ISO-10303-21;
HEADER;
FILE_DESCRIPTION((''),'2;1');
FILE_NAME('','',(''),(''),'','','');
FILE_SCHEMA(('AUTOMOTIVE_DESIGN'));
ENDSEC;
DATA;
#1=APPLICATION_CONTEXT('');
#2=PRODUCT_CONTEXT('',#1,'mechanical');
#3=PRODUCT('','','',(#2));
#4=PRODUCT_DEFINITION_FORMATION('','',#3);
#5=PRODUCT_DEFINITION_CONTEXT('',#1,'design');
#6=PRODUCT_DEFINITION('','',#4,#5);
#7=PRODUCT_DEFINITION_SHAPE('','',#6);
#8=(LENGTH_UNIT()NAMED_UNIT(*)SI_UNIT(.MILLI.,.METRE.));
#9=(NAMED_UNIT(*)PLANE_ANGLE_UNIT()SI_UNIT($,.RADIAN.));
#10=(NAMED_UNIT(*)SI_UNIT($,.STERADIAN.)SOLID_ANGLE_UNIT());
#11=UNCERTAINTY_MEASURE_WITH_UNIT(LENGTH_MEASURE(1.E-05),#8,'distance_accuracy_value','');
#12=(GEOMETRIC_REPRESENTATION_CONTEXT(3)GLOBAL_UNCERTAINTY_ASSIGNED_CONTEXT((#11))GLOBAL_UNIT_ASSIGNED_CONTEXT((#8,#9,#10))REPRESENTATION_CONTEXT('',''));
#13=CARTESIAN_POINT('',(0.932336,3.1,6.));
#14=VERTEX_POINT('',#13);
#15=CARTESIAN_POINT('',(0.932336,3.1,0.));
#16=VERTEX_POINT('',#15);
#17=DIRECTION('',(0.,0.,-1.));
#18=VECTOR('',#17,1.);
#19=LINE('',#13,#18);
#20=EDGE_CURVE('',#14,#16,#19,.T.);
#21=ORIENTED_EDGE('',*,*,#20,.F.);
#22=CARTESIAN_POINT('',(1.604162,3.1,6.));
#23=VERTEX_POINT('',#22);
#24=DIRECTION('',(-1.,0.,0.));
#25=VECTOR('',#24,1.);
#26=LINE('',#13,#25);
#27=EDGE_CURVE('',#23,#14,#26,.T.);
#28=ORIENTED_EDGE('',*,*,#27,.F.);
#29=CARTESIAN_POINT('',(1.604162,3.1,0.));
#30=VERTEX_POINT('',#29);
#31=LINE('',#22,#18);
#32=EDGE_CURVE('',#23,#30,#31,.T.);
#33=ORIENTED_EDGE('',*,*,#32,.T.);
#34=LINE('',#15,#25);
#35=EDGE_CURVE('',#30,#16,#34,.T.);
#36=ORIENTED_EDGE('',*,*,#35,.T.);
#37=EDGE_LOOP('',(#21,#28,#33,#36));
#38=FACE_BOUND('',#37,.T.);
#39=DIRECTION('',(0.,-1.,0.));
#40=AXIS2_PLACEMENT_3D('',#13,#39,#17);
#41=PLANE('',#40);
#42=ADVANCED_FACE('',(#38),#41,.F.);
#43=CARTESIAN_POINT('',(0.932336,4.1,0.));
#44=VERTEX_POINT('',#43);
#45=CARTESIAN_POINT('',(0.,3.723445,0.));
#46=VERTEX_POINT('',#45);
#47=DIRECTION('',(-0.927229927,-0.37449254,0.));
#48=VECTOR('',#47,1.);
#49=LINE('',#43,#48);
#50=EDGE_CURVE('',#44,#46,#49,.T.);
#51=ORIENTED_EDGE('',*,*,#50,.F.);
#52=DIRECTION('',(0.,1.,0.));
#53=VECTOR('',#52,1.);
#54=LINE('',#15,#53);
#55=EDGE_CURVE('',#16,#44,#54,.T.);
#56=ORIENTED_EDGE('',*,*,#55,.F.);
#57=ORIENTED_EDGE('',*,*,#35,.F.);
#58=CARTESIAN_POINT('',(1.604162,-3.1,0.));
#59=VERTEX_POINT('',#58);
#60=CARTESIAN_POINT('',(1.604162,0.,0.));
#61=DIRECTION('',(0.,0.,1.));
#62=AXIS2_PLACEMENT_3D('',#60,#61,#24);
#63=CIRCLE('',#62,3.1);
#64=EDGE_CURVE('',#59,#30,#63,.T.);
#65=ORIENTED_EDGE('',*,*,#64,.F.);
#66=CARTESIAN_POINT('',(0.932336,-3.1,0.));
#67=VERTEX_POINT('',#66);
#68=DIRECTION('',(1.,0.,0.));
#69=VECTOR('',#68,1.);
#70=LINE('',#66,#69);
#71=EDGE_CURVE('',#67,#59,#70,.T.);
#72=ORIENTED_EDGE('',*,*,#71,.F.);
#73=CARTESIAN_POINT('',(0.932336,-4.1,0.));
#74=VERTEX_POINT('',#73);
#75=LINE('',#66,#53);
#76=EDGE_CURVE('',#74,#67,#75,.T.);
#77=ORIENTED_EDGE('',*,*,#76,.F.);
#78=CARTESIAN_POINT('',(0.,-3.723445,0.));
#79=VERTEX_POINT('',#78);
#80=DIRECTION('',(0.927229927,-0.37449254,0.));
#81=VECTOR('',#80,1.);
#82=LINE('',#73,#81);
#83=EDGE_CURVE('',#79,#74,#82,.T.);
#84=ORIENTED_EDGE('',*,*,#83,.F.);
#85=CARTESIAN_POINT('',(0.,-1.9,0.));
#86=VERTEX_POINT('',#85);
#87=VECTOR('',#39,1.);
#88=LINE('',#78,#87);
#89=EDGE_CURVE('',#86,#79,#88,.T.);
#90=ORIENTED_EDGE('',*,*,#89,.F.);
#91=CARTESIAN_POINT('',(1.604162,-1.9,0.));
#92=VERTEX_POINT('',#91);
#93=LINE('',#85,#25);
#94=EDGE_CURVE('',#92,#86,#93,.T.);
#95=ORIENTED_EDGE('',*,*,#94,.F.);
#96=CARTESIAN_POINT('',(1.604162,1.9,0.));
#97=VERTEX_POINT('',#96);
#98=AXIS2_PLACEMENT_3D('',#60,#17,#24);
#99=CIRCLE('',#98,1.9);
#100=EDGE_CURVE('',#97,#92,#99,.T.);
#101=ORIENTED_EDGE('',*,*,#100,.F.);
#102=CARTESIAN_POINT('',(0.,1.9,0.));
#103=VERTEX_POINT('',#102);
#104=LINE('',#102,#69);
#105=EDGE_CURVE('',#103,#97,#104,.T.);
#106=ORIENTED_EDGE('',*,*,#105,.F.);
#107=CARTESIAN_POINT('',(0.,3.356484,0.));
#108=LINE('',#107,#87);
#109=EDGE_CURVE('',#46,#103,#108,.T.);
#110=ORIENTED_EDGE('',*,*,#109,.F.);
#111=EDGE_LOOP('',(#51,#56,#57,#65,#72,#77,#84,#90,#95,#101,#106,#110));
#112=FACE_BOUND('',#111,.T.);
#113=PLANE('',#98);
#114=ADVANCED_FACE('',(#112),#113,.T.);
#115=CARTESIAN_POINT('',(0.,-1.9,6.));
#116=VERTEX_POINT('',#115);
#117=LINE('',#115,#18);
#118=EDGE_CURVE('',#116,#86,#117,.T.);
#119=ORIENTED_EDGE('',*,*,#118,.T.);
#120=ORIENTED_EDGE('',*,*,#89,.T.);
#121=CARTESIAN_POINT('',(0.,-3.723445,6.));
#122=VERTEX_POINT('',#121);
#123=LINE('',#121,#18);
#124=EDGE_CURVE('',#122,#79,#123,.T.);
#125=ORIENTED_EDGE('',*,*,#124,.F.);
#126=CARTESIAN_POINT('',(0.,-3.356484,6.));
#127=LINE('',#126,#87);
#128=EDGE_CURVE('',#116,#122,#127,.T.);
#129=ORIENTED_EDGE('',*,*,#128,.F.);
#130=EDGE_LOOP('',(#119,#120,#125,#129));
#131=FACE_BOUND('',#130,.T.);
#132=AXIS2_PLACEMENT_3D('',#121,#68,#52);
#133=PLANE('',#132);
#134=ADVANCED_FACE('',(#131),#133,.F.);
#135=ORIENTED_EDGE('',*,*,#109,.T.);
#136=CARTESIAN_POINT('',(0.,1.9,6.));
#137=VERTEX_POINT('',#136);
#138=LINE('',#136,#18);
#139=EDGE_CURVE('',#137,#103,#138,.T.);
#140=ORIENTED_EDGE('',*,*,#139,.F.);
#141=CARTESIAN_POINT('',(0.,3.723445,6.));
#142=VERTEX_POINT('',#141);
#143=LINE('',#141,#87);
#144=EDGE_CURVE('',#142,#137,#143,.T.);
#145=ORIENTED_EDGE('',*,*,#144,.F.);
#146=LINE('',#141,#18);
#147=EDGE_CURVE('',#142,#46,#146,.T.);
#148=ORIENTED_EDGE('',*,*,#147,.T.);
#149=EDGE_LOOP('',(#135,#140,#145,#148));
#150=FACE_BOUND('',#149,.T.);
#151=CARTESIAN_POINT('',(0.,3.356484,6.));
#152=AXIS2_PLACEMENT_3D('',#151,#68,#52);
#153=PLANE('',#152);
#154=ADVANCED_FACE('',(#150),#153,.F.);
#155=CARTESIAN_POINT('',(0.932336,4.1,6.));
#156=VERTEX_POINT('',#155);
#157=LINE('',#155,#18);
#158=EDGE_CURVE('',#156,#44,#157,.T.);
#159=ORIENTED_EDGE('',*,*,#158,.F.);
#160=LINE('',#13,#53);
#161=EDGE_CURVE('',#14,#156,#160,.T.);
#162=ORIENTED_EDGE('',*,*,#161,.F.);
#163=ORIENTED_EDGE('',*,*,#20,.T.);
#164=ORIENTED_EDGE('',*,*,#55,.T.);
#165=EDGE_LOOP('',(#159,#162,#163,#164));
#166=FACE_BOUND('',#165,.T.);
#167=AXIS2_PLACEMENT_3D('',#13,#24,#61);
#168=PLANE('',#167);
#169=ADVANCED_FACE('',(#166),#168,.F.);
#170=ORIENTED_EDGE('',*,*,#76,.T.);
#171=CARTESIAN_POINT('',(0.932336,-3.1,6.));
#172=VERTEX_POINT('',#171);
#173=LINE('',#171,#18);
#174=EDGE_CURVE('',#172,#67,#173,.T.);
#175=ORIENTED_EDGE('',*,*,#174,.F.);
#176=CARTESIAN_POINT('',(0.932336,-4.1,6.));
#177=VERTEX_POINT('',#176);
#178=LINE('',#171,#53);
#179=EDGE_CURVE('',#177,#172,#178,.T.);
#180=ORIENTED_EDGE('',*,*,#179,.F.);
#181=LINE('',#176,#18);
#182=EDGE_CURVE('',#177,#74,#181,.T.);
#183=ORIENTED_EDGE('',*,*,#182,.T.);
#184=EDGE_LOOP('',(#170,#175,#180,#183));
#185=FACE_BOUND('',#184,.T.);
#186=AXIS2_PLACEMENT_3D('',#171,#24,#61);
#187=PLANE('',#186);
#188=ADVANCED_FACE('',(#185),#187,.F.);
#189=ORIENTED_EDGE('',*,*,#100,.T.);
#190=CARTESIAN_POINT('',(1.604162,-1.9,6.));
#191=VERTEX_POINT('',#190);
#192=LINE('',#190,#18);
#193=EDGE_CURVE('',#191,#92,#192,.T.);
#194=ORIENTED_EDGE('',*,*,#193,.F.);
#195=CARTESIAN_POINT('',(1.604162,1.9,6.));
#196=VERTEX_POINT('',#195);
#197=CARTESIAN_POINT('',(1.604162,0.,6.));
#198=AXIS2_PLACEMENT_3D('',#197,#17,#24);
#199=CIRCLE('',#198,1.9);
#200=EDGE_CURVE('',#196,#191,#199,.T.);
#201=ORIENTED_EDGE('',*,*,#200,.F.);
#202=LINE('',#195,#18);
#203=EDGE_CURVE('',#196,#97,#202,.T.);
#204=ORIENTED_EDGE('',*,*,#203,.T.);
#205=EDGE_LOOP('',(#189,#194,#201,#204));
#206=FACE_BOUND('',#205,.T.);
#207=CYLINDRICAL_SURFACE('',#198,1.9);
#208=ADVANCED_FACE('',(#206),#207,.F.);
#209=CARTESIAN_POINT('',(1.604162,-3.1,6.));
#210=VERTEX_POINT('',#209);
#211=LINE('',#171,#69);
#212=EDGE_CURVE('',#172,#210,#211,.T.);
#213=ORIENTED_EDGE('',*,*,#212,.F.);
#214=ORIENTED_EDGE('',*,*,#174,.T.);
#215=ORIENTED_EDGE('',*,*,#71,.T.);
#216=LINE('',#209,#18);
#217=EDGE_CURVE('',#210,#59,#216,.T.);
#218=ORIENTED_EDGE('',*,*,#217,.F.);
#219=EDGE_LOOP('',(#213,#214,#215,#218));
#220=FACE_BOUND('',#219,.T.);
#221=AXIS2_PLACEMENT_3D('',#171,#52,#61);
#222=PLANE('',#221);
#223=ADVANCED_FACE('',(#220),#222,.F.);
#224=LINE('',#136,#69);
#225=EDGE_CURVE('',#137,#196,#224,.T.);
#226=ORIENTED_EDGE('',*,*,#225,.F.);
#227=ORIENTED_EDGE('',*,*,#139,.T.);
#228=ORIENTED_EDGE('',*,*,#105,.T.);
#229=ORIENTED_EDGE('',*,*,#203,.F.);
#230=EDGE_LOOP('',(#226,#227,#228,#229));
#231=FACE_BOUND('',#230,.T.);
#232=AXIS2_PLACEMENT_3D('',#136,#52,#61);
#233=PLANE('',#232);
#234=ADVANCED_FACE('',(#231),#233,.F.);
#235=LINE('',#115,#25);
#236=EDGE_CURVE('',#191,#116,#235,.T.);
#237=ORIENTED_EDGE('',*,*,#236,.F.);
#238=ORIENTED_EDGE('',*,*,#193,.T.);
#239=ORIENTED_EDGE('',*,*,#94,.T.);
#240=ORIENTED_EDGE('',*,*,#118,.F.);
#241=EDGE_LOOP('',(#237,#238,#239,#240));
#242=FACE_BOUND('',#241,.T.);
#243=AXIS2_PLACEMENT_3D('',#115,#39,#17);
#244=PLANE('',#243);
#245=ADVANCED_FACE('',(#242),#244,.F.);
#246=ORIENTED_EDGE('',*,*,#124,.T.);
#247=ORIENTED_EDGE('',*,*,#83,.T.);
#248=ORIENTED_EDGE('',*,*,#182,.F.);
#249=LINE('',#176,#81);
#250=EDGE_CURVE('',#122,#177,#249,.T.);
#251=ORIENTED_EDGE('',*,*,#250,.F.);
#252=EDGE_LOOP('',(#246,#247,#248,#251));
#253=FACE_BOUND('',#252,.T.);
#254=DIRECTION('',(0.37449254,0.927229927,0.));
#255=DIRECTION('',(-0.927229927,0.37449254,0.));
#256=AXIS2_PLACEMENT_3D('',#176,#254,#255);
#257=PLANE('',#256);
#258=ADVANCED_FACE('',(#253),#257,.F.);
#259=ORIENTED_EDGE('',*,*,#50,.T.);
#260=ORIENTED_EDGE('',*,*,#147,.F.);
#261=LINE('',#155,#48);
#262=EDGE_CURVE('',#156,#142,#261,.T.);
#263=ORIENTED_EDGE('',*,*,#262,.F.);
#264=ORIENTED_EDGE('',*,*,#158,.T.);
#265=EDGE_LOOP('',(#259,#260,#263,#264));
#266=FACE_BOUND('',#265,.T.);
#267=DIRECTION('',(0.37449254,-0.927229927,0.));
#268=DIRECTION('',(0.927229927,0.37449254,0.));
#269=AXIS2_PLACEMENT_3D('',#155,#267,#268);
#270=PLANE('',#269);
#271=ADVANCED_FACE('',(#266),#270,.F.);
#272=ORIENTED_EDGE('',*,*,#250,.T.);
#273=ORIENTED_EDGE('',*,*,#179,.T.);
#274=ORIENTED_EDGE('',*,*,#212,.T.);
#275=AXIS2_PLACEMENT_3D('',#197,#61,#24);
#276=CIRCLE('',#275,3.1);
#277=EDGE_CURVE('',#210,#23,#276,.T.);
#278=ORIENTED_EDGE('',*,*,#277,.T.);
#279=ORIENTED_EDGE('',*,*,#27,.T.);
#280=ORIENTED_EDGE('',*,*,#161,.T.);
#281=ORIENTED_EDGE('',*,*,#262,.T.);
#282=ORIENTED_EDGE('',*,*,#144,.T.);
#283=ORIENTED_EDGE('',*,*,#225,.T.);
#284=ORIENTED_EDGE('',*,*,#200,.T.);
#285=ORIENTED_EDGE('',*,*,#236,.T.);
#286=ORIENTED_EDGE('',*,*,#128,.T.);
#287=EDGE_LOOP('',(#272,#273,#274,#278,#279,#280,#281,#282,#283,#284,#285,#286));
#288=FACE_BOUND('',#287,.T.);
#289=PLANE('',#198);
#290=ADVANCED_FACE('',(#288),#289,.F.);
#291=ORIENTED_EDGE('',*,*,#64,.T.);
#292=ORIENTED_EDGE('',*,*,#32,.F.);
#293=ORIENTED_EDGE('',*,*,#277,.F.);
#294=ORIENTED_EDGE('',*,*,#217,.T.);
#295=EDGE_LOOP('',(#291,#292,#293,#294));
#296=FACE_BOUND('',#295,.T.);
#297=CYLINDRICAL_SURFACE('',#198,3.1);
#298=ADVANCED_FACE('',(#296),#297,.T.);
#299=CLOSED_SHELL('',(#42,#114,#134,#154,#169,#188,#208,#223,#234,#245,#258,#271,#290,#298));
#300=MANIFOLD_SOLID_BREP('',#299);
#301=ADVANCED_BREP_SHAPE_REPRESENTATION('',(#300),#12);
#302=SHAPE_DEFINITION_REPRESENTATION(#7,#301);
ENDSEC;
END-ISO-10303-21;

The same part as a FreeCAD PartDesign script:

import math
import FreeCAD as App
import Part
import Sketcher

V = App.Vector
Q = App.Units.Quantity

doc = App.newDocument("Part")
body = doc.addObject("PartDesign::Body", "Body")

# Sketch on XY plane
sketch1 = body.newObject("Sketcher::SketchObject", "Sketch")
sketch1.AttachmentSupport = (doc.getObject("XY_Plane"), [""])
sketch1.MapMode = "FlatFace"
sketch1.addGeometry([
    Part.LineSegment(V(1.6, 3.1, 0), V(0.9, 3.1, 0)),  # 0
    Part.LineSegment(V(0.9, 3.1, 0), V(0.9, 4.1, 0)),  # 1
    Part.LineSegment(V(0.9, 4.1, 0), V(0, 3.7, 0)),  # 2
    Part.LineSegment(V(0, 3.7, 0), V(0, 1.9, 0)),  # 3
    Part.LineSegment(V(0, 1.9, 0), V(1.6, 1.9, 0)),  # 4
    Part.ArcOfCircle(Part.Circle(V(1.6, 0, 0), V(0, 0, 1), 1.9), math.radians(-90), math.radians(90)),  # 5
    Part.LineSegment(V(1.6, -1.9, 0), V(0, -1.9, 0)),  # 6
    Part.LineSegment(V(0, -1.9, 0), V(0, -3.7, 0)),  # 7
    Part.LineSegment(V(0, -3.7, 0), V(0.9, -4.1, 0)),  # 8
    Part.LineSegment(V(0.9, -4.1, 0), V(0.9, -3.1, 0)),  # 9
    Part.LineSegment(V(0.9, -3.1, 0), V(1.6, -3.1, 0)),  # 10
    Part.ArcOfCircle(Part.Circle(V(1.6, 0, 0), V(0, 0, 1), 3.1), math.radians(-90), math.radians(90)),  # 11
], False)
sketch1.addConstraint([
    Sketcher.Constraint("Coincident", 0, 2, 1, 1),
    Sketcher.Constraint("Coincident", 1, 2, 2, 1),
    Sketcher.Constraint("Coincident", 2, 2, 3, 1),
    Sketcher.Constraint("Coincident", 3, 2, 4, 1),
    Sketcher.Constraint("Tangent", 4, 2, 5, 2),
    Sketcher.Constraint("Tangent", 5, 1, 6, 1),
    Sketcher.Constraint("Coincident", 6, 2, 7, 1),
    Sketcher.Constraint("Coincident", 7, 2, 8, 1),
    Sketcher.Constraint("Coincident", 8, 2, 9, 1),
    Sketcher.Constraint("Coincident", 9, 2, 10, 1),
    Sketcher.Constraint("Tangent", 10, 2, 11, 1),
    Sketcher.Constraint("Tangent", 11, 2, 0, 1),
    Sketcher.Constraint("Horizontal", 0),
    Sketcher.Constraint("Vertical", 1),
    Sketcher.Constraint("Vertical", 3),
    Sketcher.Constraint("Horizontal", 4),
    Sketcher.Constraint("Horizontal", 6),
    Sketcher.Constraint("Vertical", 7),
    Sketcher.Constraint("Vertical", 9),
    Sketcher.Constraint("Horizontal", 10),
    Sketcher.Constraint("Coincident", 11, 3, 5, 3),
    Sketcher.Constraint("Symmetric", 3, 2, 6, 2, -1, 1),
    Sketcher.Constraint("Symmetric", 2, 2, 7, 2, -1),
    Sketcher.Constraint("Symmetric", 1, 2, 8, 2, -1),
    Sketcher.Constraint("Radius", 5, Q("1.9 mm")),
    Sketcher.Constraint("Radius", 11, Q("3.1 mm")),
    Sketcher.Constraint("DistanceY", 1, 1, 1, 2, Q("1 mm")),
    Sketcher.Constraint("DistanceX", 0, 2, 0, 1, Q("0.671826 mm")),
    Sketcher.Constraint("DistanceX", 4, 1, 4, 2, Q("1.604162 mm")),
    Sketcher.Constraint("DistanceY", 3, 2, 3, 1, Q("1.823445 mm")),
])
pad1 = body.newObject("PartDesign::Pad", "Pad")
pad1.Profile = sketch1
pad1.Length = 6

doc.recompute()
